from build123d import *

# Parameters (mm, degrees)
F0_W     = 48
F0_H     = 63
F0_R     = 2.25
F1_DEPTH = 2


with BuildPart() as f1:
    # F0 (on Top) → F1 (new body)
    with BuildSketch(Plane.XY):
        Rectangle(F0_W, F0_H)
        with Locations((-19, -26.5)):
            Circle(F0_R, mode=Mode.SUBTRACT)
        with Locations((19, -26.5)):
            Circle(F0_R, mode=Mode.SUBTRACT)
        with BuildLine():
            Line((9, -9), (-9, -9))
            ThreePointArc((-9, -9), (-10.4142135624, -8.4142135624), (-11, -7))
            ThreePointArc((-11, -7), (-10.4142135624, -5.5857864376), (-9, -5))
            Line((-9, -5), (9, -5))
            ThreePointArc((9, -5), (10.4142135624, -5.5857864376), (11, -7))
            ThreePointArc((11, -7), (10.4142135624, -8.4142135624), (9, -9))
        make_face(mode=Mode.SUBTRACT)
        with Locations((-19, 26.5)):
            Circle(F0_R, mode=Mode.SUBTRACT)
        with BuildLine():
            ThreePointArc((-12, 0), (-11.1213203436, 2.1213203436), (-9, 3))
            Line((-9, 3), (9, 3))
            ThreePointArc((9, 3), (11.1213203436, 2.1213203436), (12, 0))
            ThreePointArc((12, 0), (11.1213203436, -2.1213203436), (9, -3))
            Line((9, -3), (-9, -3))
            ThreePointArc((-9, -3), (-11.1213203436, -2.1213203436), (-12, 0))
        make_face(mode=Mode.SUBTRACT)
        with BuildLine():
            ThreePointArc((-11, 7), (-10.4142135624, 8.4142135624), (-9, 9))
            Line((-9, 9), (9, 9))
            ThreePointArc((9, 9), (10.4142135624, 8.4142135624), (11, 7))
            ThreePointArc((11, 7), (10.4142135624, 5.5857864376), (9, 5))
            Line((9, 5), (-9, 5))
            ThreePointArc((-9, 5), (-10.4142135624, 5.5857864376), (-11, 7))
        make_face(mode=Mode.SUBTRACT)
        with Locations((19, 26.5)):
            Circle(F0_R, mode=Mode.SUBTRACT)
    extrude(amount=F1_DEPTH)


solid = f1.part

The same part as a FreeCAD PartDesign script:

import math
import FreeCAD as App
import Part
import Sketcher
from FreeCAD import Vector
Q = App.Units.Quantity


def add_polygon(sketch, points):
    """Adds a closed chain of lines whose ends are joined by coincident constraints."""
    first, n = sketch.GeometryCount, len(points)
    for a, b in zip(points, points[1:] + points[:1]):
        sketch.addGeometry(Part.LineSegment(App.Vector(*a, 0), App.Vector(*b, 0)), False)
    for i in range(n):
        sketch.addConstraint(Sketcher.Constraint("Coincident", first + i, 2, first + (i + 1) % n, 1))

doc = App.newDocument("Part")
body = doc.addObject("PartDesign::Body", "Body")

sketch1 = body.newObject("Sketcher::SketchObject", "Sketch")
sketch1.AttachmentSupport = (doc.getObject("XY_Plane"), [""])
sketch1.MapMode = "FlatFace"
add_polygon(sketch1, [(-24, 31.5), (-24, -31.5), (24, -31.5), (24, 31.5)])
sketch1.addGeometry(Part.Circle(Vector(-19, -26.5, 0), Vector(0, 0, 1), 2.2), False)
sketch1.addGeometry(Part.Circle(Vector(19, -26.5, 0), Vector(0, 0, 1), 2.2), False)
sketch1.addGeometry(Part.ArcOfCircle(Part.Circle(Vector(9, -7, 0), Vector(0, 0, 1), 2), math.radians(-90), math.radians(0)), False)
sketch1.addGeometry(Part.LineSegment(Vector(9, -9, 0), Vector(-9, -9, 0)), False)
sketch1.addGeometry(Part.ArcOfCircle(Part.Circle(Vector(-9, -7, 0), Vector(0, 0, 1), 2), math.radians(180), math.radians(270)), False)
sketch1.addGeometry(Part.ArcOfCircle(Part.Circle(Vector(-9, -7, 0), Vector(0, 0, 1), 2), math.radians(90), math.radians(180)), False)
sketch1.addGeometry(Part.LineSegment(Vector(-9, -5, 0), Vector(9, -5, 0)), False)
sketch1.addGeometry(Part.ArcOfCircle(Part.Circle(Vector(9, -7, 0), Vector(0, 0, 1), 2), math.radians(0), math.radians(90)), False)
sketch1.addGeometry(Part.Circle(Vector(-19, 26.5, 0), Vector(0, 0, 1), 2.2), False)
sketch1.addGeometry(Part.ArcOfCircle(Part.Circle(Vector(-9, 0, 0), Vector(0, 0, 1), 3), math.radians(180), math.radians(270)), False)
sketch1.addGeometry(Part.ArcOfCircle(Part.Circle(Vector(-9, 0, 0), Vector(0, 0, 1), 3), math.radians(90), math.radians(180)), False)
sketch1.addGeometry(Part.LineSegment(Vector(-9, 3, 0), Vector(9, 3, 0)), False)
sketch1.addGeometry(Part.ArcOfCircle(Part.Circle(Vector(9, 0, 0), Vector(0, 0, 1), 3), math.radians(0), math.radians(90)), False)
sketch1.addGeometry(Part.ArcOfCircle(Part.Circle(Vector(9, 0, 0), Vector(0, 0, 1), 3), math.radians(-90), math.radians(0)), False)
sketch1.addGeometry(Part.LineSegment(Vector(9, -3, 0), Vector(-9, -3, 0)), False)
sketch1.addGeometry(Part.ArcOfCircle(Part.Circle(Vector(-9, 7, 0), Vector(0, 0, 1), 2), math.radians(180), math.radians(270)), False)
sketch1.addGeometry(Part.ArcOfCircle(Part.Circle(Vector(-9, 7, 0), Vector(0, 0, 1), 2), math.radians(90), math.radians(180)), False)
sketch1.addGeometry(Part.LineSegment(Vector(-9, 9, 0), Vector(9, 9, 0)), False)
sketch1.addGeometry(Part.ArcOfCircle(Part.Circle(Vector(9, 7, 0), Vector(0, 0, 1), 2), math.radians(0), math.radians(90)), False)
sketch1.addGeometry(Part.ArcOfCircle(Part.Circle(Vector(9, 7, 0), Vector(0, 0, 1), 2), math.radians(-90), math.radians(0)), False)
sketch1.addGeometry(Part.LineSegment(Vector(9, 5, 0), Vector(-9, 5, 0)), False)
sketch1.addGeometry(Part.Circle(Vector(19, 26.5, 0), Vector(0, 0, 1), 2.2), False)
sketch1.addConstraint(Sketcher.Constraint("Tangent", 6, 1, 7, 1))
sketch1.addConstraint(Sketcher.Constraint("Tangent", 7, 2, 8, 2))
sketch1.addConstraint(Sketcher.Constraint("Tangent", 8, 1, 9, 2))
sketch1.addConstraint(Sketcher.Constraint("Tangent", 9, 1, 10, 1))
sketch1.addConstraint(Sketcher.Constraint("Tangent", 10, 2, 11, 2))
sketch1.addConstraint(Sketcher.Constraint("Tangent", 11, 1, 6, 2))
sketch1.addConstraint(Sketcher.Constraint("Tangent", 13, 1, 14, 2))
sketch1.addConstraint(Sketcher.Constraint("Tangent", 14, 1, 15, 1))
sketch1.addConstraint(Sketcher.Constraint("Tangent", 15, 2, 16, 2))
sketch1.addConstraint(Sketcher.Constraint("Tangent", 16, 1, 17, 2))
sketch1.addConstraint(Sketcher.Constraint("Tangent", 17, 1, 18, 1))
sketch1.addConstraint(Sketcher.Constraint("Tangent", 18, 2, 13, 2))
sketch1.addConstraint(Sketcher.Constraint("Tangent", 19, 1, 20, 2))
sketch1.addConstraint(Sketcher.Constraint("Tangent", 20, 1, 21, 1))
sketch1.addConstraint(Sketcher.Constraint("Tangent", 21, 2, 22, 2))
sketch1.addConstraint(Sketcher.Constraint("Tangent", 22, 1, 23, 2))
sketch1.addConstraint(Sketcher.Constraint("Tangent", 23, 1, 24, 1))
sketch1.addConstraint(Sketcher.Constraint("Tangent", 24, 2, 19, 2))
sketch1.addConstraint(Sketcher.Constraint("Vertical", 0))
sketch1.addConstraint(Sketcher.Constraint("Horizontal", 1))
sketch1.addConstraint(Sketcher.Constraint("Vertical", 2))
sketch1.addConstraint(Sketcher.Constraint("Horizontal", 3))
sketch1.addConstraint(Sketcher.Constraint("Horizontal", 7))
sketch1.addConstraint(Sketcher.Constraint("Horizontal", 10))
sketch1.addConstraint(Sketcher.Constraint("Horizontal", 15))
sketch1.addConstraint(Sketcher.Constraint("Horizontal", 18))
sketch1.addConstraint(Sketcher.Constraint("Horizontal", 21))
sketch1.addConstraint(Sketcher.Constraint("Horizontal", 24))
sketch1.addConstraint(Sketcher.Constraint("Equal", 4, 5))
sketch1.addConstraint(Sketcher.Constraint("Equal", 6, 8))
sketch1.addConstraint(Sketcher.Constraint("Equal", 8, 9))
sketch1.addConstraint(Sketcher.Constraint("Equal", 5, 12))
sketch1.addConstraint(Sketcher.Constraint("Equal", 13, 14))
sketch1.addConstraint(Sketcher.Constraint("Equal", 14, 16))
sketch1.addConstraint(Sketcher.Constraint("Equal", 11, 19))
sketch1.addConstraint(Sketcher.Constraint("Equal", 19, 20))
sketch1.addConstraint(Sketcher.Constraint("Equal", 20, 22))
sketch1.addConstraint(Sketcher.Constraint("Equal", 12, 25))
sketch1.addConstraint(Sketcher.Constraint("Symmetric", 5, 3, 12, 3, -1, 1))
sketch1.addConstraint(Sketcher.Constraint("Symmetric", 13, 3, 16, 3, -1, 1))
sketch1.addConstraint(Sketcher.Constraint("Symmetric", 6, 3, 19, 3, -1, 1))
sketch1.addConstraint(Sketcher.Constraint("Symmetric", 4, 3, 25, 3, -1, 1))
sketch1.addConstraint(Sketcher.Constraint("Symmetric", 0, 2, 2, 2, -1, 1))
sketch1.addConstraint(Sketcher.Constraint("Symmetric", 8, 1, 22, 1, -1, 1))
sketch1.addConstraint(Sketcher.Constraint("Symmetric", 4, 3, 5, 3, -2))
sketch1.addConstraint(Sketcher.Constraint("Symmetric", 8, 1, 11, 1, -2))
sketch1.addConstraint(Sketcher.Constraint("PointOnObject", 13, 1, -1))
sketch1.addConstraint(Sketcher.Constraint("PointOnObject", 16, 1, -1))
sketch1.addConstraint(Sketcher.Constraint("Horizontal", 11, 3, 8, 1))
sketch1.addConstraint(Sketcher.Constraint("Horizontal", 23, 3, 19, 1))
sketch1.addConstraint(Sketcher.Constraint("Vertical", 9, 3, 13, 3))
sketch1.addConstraint(Sketcher.Constraint("Radius", 6, Q("2 mm")))
sketch1.addConstraint(Sketcher.Constraint("Radius", 13, Q("3 mm")))
sketch1.addConstraint(Sketcher.Constraint("Diameter", 4, Q("4.5 mm")))
sketch1.addConstraint(Sketcher.Constraint("DistanceX", 1, 1, 1, 2, Q("48 mm")))
sketch1.addConstraint(Sketcher.Constraint("DistanceX", 7, 2, 7, 1, Q("18 mm")))
sketch1.addConstraint(Sketcher.Constraint("DistanceY", 0, 2, 0, 1, Q("63 mm")))
sketch1.addConstraint(Sketcher.Constraint("DistanceX", 4, 3, -1, 1, Q("19 mm")))
sketch1.addConstraint(Sketcher.Constraint("DistanceY", 6, 3, -1, 1, Q("7 mm")))
sketch1.addConstraint(Sketcher.Constraint("DistanceY", 4, 3, 12, 3, Q("53 mm")))
pad1 = body.newObject("PartDesign::Pad", "Pad")
pad1.Profile = sketch1
pad1.Length = 2

doc.recompute()
